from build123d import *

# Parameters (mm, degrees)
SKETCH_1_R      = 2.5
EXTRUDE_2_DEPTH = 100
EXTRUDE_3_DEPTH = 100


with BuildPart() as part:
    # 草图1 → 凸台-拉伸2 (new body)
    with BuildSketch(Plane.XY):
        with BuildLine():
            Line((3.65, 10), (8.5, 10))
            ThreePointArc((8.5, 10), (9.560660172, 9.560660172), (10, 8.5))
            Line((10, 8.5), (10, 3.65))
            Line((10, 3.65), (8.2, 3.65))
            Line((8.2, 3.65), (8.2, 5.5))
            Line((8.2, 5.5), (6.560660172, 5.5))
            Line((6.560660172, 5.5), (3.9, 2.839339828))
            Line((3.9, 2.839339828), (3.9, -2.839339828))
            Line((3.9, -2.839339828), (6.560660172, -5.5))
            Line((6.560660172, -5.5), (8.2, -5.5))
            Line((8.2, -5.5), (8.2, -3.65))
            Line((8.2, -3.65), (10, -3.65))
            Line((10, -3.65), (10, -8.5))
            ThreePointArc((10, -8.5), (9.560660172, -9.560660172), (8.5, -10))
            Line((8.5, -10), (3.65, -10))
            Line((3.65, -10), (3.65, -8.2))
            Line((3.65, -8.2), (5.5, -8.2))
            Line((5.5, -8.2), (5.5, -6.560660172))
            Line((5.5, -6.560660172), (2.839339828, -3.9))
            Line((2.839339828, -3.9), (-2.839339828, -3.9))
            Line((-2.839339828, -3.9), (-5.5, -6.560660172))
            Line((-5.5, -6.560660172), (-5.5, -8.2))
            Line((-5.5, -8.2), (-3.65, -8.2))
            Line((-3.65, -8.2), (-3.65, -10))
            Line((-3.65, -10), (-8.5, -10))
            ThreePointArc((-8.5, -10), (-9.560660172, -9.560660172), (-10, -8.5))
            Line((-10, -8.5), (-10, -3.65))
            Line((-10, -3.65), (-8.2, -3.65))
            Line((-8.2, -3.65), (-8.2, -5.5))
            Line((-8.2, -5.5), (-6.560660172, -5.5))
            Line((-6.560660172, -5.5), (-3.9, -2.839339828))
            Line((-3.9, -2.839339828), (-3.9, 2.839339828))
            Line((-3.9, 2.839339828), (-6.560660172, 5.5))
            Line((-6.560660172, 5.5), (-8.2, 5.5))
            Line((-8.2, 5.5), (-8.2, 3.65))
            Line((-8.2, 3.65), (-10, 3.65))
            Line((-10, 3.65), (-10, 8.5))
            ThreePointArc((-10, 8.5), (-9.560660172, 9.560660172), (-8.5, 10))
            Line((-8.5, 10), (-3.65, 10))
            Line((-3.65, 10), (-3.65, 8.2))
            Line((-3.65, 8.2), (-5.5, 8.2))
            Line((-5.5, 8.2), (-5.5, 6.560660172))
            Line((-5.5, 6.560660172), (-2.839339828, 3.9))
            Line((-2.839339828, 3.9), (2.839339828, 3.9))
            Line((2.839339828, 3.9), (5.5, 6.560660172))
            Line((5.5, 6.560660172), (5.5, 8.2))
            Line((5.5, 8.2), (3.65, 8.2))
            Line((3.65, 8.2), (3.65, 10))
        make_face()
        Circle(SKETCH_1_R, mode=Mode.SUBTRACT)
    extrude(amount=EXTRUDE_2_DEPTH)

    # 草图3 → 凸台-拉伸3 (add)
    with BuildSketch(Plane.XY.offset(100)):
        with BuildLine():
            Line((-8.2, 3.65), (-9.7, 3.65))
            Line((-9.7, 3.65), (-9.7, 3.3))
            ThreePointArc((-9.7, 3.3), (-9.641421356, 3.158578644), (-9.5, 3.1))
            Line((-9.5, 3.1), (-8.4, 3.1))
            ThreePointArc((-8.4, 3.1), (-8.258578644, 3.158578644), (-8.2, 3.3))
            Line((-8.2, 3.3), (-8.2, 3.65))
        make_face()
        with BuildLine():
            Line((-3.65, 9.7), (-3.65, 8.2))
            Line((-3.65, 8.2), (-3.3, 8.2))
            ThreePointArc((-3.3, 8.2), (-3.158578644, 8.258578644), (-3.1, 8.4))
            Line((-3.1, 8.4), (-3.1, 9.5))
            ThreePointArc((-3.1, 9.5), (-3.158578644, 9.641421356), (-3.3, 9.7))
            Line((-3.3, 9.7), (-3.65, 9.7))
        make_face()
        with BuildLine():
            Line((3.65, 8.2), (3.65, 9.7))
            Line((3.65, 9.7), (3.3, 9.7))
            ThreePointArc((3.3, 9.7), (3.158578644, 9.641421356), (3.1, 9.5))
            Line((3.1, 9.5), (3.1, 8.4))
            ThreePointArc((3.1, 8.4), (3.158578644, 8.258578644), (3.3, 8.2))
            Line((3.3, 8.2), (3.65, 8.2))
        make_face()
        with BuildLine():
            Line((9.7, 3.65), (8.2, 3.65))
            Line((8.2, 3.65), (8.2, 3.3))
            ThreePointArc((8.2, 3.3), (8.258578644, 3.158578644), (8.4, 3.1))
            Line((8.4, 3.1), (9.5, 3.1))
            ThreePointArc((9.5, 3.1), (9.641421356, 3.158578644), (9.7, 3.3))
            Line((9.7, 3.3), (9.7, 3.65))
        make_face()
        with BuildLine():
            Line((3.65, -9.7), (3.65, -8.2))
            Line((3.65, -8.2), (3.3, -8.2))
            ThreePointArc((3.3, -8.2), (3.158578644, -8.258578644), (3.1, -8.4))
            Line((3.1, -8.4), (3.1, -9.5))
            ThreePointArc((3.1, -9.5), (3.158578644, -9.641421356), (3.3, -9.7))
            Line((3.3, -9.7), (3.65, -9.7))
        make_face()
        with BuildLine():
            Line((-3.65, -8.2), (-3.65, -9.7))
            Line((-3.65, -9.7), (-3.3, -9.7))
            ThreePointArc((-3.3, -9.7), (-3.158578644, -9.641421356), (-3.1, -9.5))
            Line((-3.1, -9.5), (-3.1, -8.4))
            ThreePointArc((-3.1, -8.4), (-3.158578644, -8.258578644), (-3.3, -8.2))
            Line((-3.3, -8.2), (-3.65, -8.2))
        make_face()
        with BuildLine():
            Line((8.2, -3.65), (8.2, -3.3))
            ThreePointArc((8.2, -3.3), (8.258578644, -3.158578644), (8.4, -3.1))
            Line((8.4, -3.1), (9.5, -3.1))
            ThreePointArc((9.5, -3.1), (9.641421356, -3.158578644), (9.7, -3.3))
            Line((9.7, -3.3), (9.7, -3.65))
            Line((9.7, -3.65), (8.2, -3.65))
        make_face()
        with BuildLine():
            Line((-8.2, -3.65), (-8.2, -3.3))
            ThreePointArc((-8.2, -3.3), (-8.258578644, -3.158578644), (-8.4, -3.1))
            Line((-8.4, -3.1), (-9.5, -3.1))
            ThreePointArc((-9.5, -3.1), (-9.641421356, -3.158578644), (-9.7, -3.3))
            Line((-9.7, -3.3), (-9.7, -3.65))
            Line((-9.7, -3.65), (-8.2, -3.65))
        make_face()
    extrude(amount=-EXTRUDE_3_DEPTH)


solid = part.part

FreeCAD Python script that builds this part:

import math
import FreeCAD as App
import Part
import Sketcher
from FreeCAD import Vector
Q = App.Units.Quantity

doc = App.newDocument("Part")
body = doc.addObject("PartDesign::Body", "Body")

# Sketch on XY plane
sketch1 = body.newObject("Sketcher::SketchObject", "Sketch")
sketch1.AttachmentSupport = (doc.getObject("XY_Plane"), [""])
sketch1.MapMode = "FlatFace"
sketch1.addGeometry([
    Part.LineSegment(Vector(8.5, 10, 0), Vector(3.65, 10, 0)),  # 0
    Part.LineSegment(Vector(3.65, 10, 0), Vector(3.65, 8.2, 0)),  # 1
    Part.LineSegment(Vector(3.65, 8.2, 0), Vector(5.5, 8.2, 0)),  # 2
    Part.LineSegment(Vector(5.5, 8.2, 0), Vector(5.5, 6.56066, 0)),  # 3
    Part.LineSegment(Vector(5.5, 6.56066, 0), Vector(2.83934, 3.9, 0)),  # 4
    Part.LineSegment(Vector(2.83934, 3.9, 0), Vector(-2.83934, 3.9, 0)),  # 5
    Part.LineSegment(Vector(-2.83934, 3.9, 0), Vector(-5.5, 6.56066, 0)),  # 6
    Part.LineSegment(Vector(-5.5, 6.56066, 0), Vector(-5.5, 8.2, 0)),  # 7
    Part.LineSegment(Vector(-5.5, 8.2, 0), Vector(-3.65, 8.2, 0)),  # 8
    Part.LineSegment(Vector(-3.65, 8.2, 0), Vector(-3.65, 10, 0)),  # 9
    Part.LineSegment(Vector(-3.65, 10, 0), Vector(-8.5, 10, 0)),  # 10
    Part.ArcOfCircle(Part.Circle(Vector(-8.5, 8.5, 0), Vector(0, 0, 1), 1.5), math.radians(90), math.radians(180)),  # 11
    Part.LineSegment(Vector(-10, 8.5, 0), Vector(-10, 3.65, 0)),  # 12
    Part.LineSegment(Vector(-10, 3.65, 0), Vector(-8.2, 3.65, 0)),  # 13
    Part.LineSegment(Vector(-8.2, 3.65, 0), Vector(-8.2, 5.5, 0)),  # 14
    Part.LineSegment(Vector(-8.2, 5.5, 0), Vector(-6.56066, 5.5, 0)),  # 15
    Part.LineSegment(Vector(-6.56066, 5.5, 0), Vector(-3.9, 2.83934, 0)),  # 16
    Part.LineSegment(Vector(-3.9, 2.83934, 0), Vector(-3.9, -2.83934, 0)),  # 17
    Part.LineSegment(Vector(-3.9, -2.83934, 0), Vector(-6.56066, -5.5, 0)),  # 18
    Part.LineSegment(Vector(-6.56066, -5.5, 0), Vector(-8.2, -5.5, 0)),  # 19
    Part.LineSegment(Vector(-8.2, -5.5, 0), Vector(-8.2, -3.65, 0)),  # 20
    Part.LineSegment(Vector(-8.2, -3.65, 0), Vector(-10, -3.65, 0)),  # 21
    Part.LineSegment(Vector(-10, -3.65, 0), Vector(-10, -8.5, 0)),  # 22
    Part.ArcOfCircle(Part.Circle(Vector(-8.5, -8.5, 0), Vector(0, 0, 1), 1.5), math.radians(180), math.radians(270)),  # 23
    Part.LineSegment(Vector(-8.5, -10, 0), Vector(-3.65, -10, 0)),  # 24
    Part.LineSegment(Vector(-3.65, -10, 0), Vector(-3.65, -8.2, 0)),  # 25
    Part.LineSegment(Vector(-3.65, -8.2, 0), Vector(-5.5, -8.2, 0)),  # 26
    Part.LineSegment(Vector(-5.5, -8.2, 0), Vector(-5.5, -6.56066, 0)),  # 27
    Part.LineSegment(Vector(-5.5, -6.56066, 0), Vector(-2.83934, -3.9, 0)),  # 28
    Part.LineSegment(Vector(-2.83934, -3.9, 0), Vector(2.83934, -3.9, 0)),  # 29
    Part.LineSegment(Vector(2.83934, -3.9, 0), Vector(5.5, -6.56066, 0)),  # 30
    Part.LineSegment(Vector(5.5, -6.56066, 0), Vector(5.5, -8.2, 0)),  # 31
    Part.LineSegment(Vector(5.5, -8.2, 0), Vector(3.65, -8.2, 0)),  # 32
    Part.LineSegment(Vector(3.65, -8.2, 0), Vector(3.65, -10, 0)),  # 33
    Part.LineSegment(Vector(3.65, -10, 0), Vector(8.5, -10, 0)),  # 34
    Part.ArcOfCircle(Part.Circle(Vector(8.5, -8.5, 0), Vector(0, 0, 1), 1.5), math.radians(-90), math.radians(0)),  # 35
    Part.LineSegment(Vector(10, -8.5, 0), Vector(10, -3.65, 0)),  # 36
    Part.LineSegment(Vector(10, -3.65, 0), Vector(8.2, -3.65, 0)),  # 37
    Part.LineSegment(Vector(8.2, -3.65, 0), Vector(8.2, -5.5, 0)),  # 38
    Part.LineSegment(Vector(8.2, -5.5, 0), Vector(6.56066, -5.5, 0)),  # 39
    Part.LineSegment(Vector(6.56066, -5.5, 0), Vector(3.9, -2.83934, 0)),  # 40
    Part.LineSegment(Vector(3.9, -2.83934, 0), Vector(3.9, 2.83934, 0)),  # 41
    Part.LineSegment(Vector(3.9, 2.83934, 0), Vector(6.56066, 5.5, 0)),  # 42
    Part.LineSegment(Vector(6.56066, 5.5, 0), Vector(8.2, 5.5, 0)),  # 43
    Part.LineSegment(Vector(8.2, 5.5, 0), Vector(8.2, 3.65, 0)),  # 44
    Part.LineSegment(Vector(8.2, 3.65, 0), Vector(10, 3.65, 0)),  # 45
    Part.LineSegment(Vector(10, 3.65, 0), Vector(10, 8.5, 0)),  # 46
    Part.ArcOfCircle(Part.Circle(Vector(8.5, 8.5, 0), Vector(0, 0, 1), 1.5), math.radians(0), math.radians(90)),  # 47
    Part.Circle(Vector(0, 0, 0), Vector(0, 0, 1), 2.5),  # 48
], False)
sketch1.addConstraint([
    Sketcher.Constraint("Coincident", 0, 2, 1, 1),
    Sketcher.Constraint("Coincident", 1, 2, 2, 1),
    Sketcher.Constraint("Coincident", 2, 2, 3, 1),
    Sketcher.Constraint("Coincident", 3, 2, 4, 1),
    Sketcher.Constraint("Coincident", 4, 2, 5, 1),
    Sketcher.Constraint("Coincident", 5, 2, 6, 1),
    Sketcher.Constraint("Coincident", 6, 2, 7, 1),
    Sketcher.Constraint("Coincident", 7, 2, 8, 1),
    Sketcher.Constraint("Coincident", 8, 2, 9, 1),
    Sketcher.Constraint("Coincident", 9, 2, 10, 1),
    Sketcher.Constraint("Tangent", 10, 2, 11, 1),
    Sketcher.Constraint("Tangent", 11, 2, 12, 1),
    Sketcher.Constraint("Coincident", 12, 2, 13, 1),
    Sketcher.Constraint("Coincident", 13, 2, 14, 1),
    Sketcher.Constraint("Coincident", 14, 2, 15, 1),
    Sketcher.Constraint("Coincident", 15, 2, 16, 1),
    Sketcher.Constraint("Coincident", 16, 2, 17, 1),
    Sketcher.Constraint("Coincident", 17, 2, 18, 1),
    Sketcher.Constraint("Coincident", 18, 2, 19, 1),
    Sketcher.Constraint("Coincident", 19, 2, 20, 1),
    Sketcher.Constraint("Coincident", 20, 2, 21, 1),
    Sketcher.Constraint("Coincident", 21, 2, 22, 1),
    Sketcher.Constraint("Tangent", 22, 2, 23, 1),
    Sketcher.Constraint("Tangent", 23, 2, 24, 1),
    Sketcher.Constraint("Coincident", 24, 2, 25, 1),
    Sketcher.Constraint("Coincident", 25, 2, 26, 1),
    Sketcher.Constraint("Coincident", 26, 2, 27, 1),
    Sketcher.Constraint("Coincident", 27, 2, 28, 1),
    Sketcher.Constraint("Coincident", 28, 2, 29, 1),
    Sketcher.Constraint("Coincident", 29, 2, 30, 1),
    Sketcher.Constraint("Coincident", 30, 2, 31, 1),
    Sketcher.Constraint("Coincident", 31, 2, 32, 1),
    Sketcher.Constraint("Coincident", 32, 2, 33, 1),
    Sketcher.Constraint("Coincident", 33, 2, 34, 1),
    Sketcher.Constraint("Tangent", 34, 2, 35, 1),
    Sketcher.Constraint("Tangent", 35, 2, 36, 1),
    Sketcher.Constraint("Coincident", 36, 2, 37, 1),
    Sketcher.Constraint("Coincident", 37, 2, 38, 1),
    Sketcher.Constraint("Coincident", 38, 2, 39, 1),
    Sketcher.Constraint("Coincident", 39, 2, 40, 1),
    Sketcher.Constraint("Coincident", 40, 2, 41, 1),
    Sketcher.Constraint("Coincident", 41, 2, 42, 1),
    Sketcher.Constraint("Coincident", 42, 2, 43, 1),
    Sketcher.Constraint("Coincident", 43, 2, 44, 1),
    Sketcher.Constraint("Coincident", 44, 2, 45, 1),
    Sketcher.Constraint("Coincident", 45, 2, 46, 1),
    Sketcher.Constraint("Tangent", 46, 2, 47, 1),
    Sketcher.Constraint("Tangent", 47, 2, 0, 1),
    Sketcher.Constraint("Horizontal", 0),
    Sketcher.Constraint("Vertical", 1),
    Sketcher.Constraint("Horizontal", 2),
    Sketcher.Constraint("Vertical", 3),
    Sketcher.Constraint("Horizontal", 5),
    Sketcher.Constraint("Vertical", 7),
    Sketcher.Constraint("Horizontal", 8),
    Sketcher.Constraint("Vertical", 9),
    Sketcher.Constraint("Horizontal", 10),
    Sketcher.Constraint("Vertical", 12),
    Sketcher.Constraint("Horizontal", 13),
    Sketcher.Constraint("Vertical", 14),
    Sketcher.Constraint("Horizontal", 15),
    Sketcher.Constraint("Vertical", 17),
    Sketcher.Constraint("Horizontal", 19),
    Sketcher.Constraint("Vertical", 20),
    Sketcher.Constraint("Horizontal", 21),
    Sketcher.Constraint("Vertical", 22),
    Sketcher.Constraint("Horizontal", 24),
    Sketcher.Constraint("Vertical", 25),
    Sketcher.Constraint("Horizontal", 26),
    Sketcher.Constraint("Vertical", 27),
    Sketcher.Constraint("Horizontal", 29),
    Sketcher.Constraint("Vertical", 31),
    Sketcher.Constraint("Horizontal", 32),
    Sketcher.Constraint("Vertical", 33),
    Sketcher.Constraint("Horizontal", 34),
    Sketcher.Constraint("Vertical", 36),
    Sketcher.Constraint("Horizontal", 37),
    Sketcher.Constraint("Vertical", 38),
    Sketcher.Constraint("Horizontal", 39),
    Sketcher.Constraint("Vertical", 41),
    Sketcher.Constraint("Horizontal", 43),
    Sketcher.Constraint("Vertical", 44),
    Sketcher.Constraint("Horizontal", 45),
    Sketcher.Constraint("Vertical", 46),
    Sketcher.Constraint("Coincident", 48, 3, -1, 1),
    Sketcher.Constraint("Equal", 11, 23),
    Sketcher.Constraint("Equal", 23, 35),
    Sketcher.Constraint("Equal", 35, 47),
    Sketcher.Constraint("Symmetric", 11, 3, 35, 3, -1, 1),
    Sketcher.Constraint("Symmetric", 23, 3, 47, 3, -1, 1),
    Sketcher.Constraint("Symmetric", 1, 2, 25, 2, -1, 1),
    Sketcher.Constraint("Symmetric", 3, 2, 27, 2, -1, 1),
    Sketcher.Constraint("Symmetric", 4, 2, 28, 2, -1, 1),
    Sketcher.Constraint("Symmetric", 6, 2, 30, 2, -1, 1),
    Sketcher.Constraint("Symmetric", 8, 2, 32, 2, -1, 1),
    Sketcher.Constraint("Symmetric", 13, 2, 37, 2, -1, 1),
    Sketcher.Constraint("Symmetric", 15, 2, 39, 2, -1, 1),
    Sketcher.Constraint("Symmetric", 16, 2, 40, 2, -1, 1),
    Sketcher.Constraint("Symmetric", 18, 2, 42, 2, -1, 1),
    Sketcher.Constraint("Symmetric", 20, 2, 44, 2, -1, 1),
    Sketcher.Constraint("Symmetric", 23, 3, 35, 3, -2),
    Sketcher.Constraint("Symmetric", 3, 2, 6, 2, -2),
    Sketcher.Constraint("Symmetric", 1, 2, 8, 2, -2),
    Sketcher.Constraint("Symmetric", 20, 2, 37, 2, -2),
    Sketcher.Constraint("Symmetric", 18, 2, 39, 2, -2),
    Sketcher.Constraint("Perpendicular", 4, 6),
    Sketcher.Constraint("Parallel", 6, 16),
    Sketcher.Constraint("Perpendicular", 16, 18),
    Sketcher.Constraint("Perpendicular", 28, 30),
    Sketcher.Constraint("Perpendicular", 40, 42),
    Sketcher.Constraint("Horizontal", 17, 2, 40, 2),
    Sketcher.Constraint("Equal", 45, 1),
    Sketcher.Constraint("Equal", 43, 3),
    Sketcher.Constraint("Equal", 34, 12),
    Sketcher.Constraint("Equal", 32, 14),
    Sketcher.Constraint("Equal", 29, 17),
    Sketcher.Constraint("Equal", 6, 16),
    Sketcher.Constraint("Diameter", 48, Q("5 mm")),
    Sketcher.Constraint("Radius", 11, Q("1.5 mm")),
    Sketcher.Constraint("DistanceX", 13, 1, 13, 2, Q("1.8 mm")),
    Sketcher.Constraint("DistanceY", -1, 1, 0, 2, Q("10 mm")),
    Sketcher.Constraint("DistanceX", 2, 2, 47, 3, Q("3 mm")),
    Sketcher.Constraint("DistanceX", 0, 2, 0, 1, Q("4.85 mm")),
    Sketcher.Constraint("DistanceY", -1, 1, 4, 2, Q("3.9 mm")),
    Sketcher.Constraint("DistanceX", 5, 2, 5, 1, Q("5.67868 mm")),
])
pad1 = body.newObject("PartDesign::Pad", "Pad")
pad1.Profile = sketch1
pad1.Length = 100

# Sketch on XY plane
sketch2 = body.newObject("Sketcher::SketchObject", "Sketch001")
sketch2.AttachmentSupport = (doc.getObject("XY_Plane"), [""])
sketch2.MapMode = "FlatFace"
sketch2.AttachmentOffset = App.Placement(Vector(0, 0, 100), App.Rotation())
sketch2.addGeometry([
    Part.LineSegment(Vector(-8.2, 3.65, 0), Vector(-9.7, 3.65, 0)),  # 0
    Part.LineSegment(Vector(-9.7, 3.65, 0), Vector(-9.7, 3.3, 0)),  # 1
    Part.ArcOfCircle(Part.Circle(Vector(-9.5, 3.3, 0), Vector(0, 0, 1), 0.2), math.radians(-180), math.radians(-90)),  # 2
    Part.LineSegment(Vector(-9.5, 3.1, 0), Vector(-8.4, 3.1, 0)),  # 3
    Part.ArcOfCircle(Part.Circle(Vector(-8.4, 3.3, 0), Vector(0, 0, 1), 0.2), math.radians(-90), math.radians(0)),  # 4
    Part.LineSegment(Vector(-8.2, 3.3, 0), Vector(-8.2, 3.65, 0)),  # 5
    Part.LineSegment(Vector(-3.65, 9.7, 0), Vector(-3.65, 8.2, 0)),  # 6
    Part.LineSegment(Vector(-3.65, 8.2, 0), Vector(-3.3, 8.2, 0)),  # 7
    Part.ArcOfCircle(Part.Circle(Vector(-3.3, 8.4, 0), Vector(0, 0, 1), 0.2), math.radians(-90), math.radians(0)),  # 8
    Part.LineSegment(Vector(-3.1, 8.4, 0), Vector(-3.1, 9.5, 0)),  # 9
    Part.ArcOfCircle(Part.Circle(Vector(-3.3, 9.5, 0), Vector(0, 0, 1), 0.2), math.radians(0), math.radians(90)),  # 10
    Part.LineSegment(Vector(-3.3, 9.7, 0), Vector(-3.65, 9.7, 0)),  # 11
    Part.LineSegment(Vector(3.65, 8.2, 0), Vector(3.65, 9.7, 0)),  # 12
    Part.LineSegment(Vector(3.65, 9.7, 0), Vector(3.3, 9.7, 0)),  # 13
    Part.ArcOfCircle(Part.Circle(Vector(3.3, 9.5, 0), Vector(0, 0, 1), 0.2), math.radians(90), math.radians(180)),  # 14
    Part.LineSegment(Vector(3.1, 9.5, 0), Vector(3.1, 8.4, 0)),  # 15
    Part.ArcOfCircle(Part.Circle(Vector(3.3, 8.4, 0), Vector(0, 0, 1), 0.2), math.radians(-180), math.radians(-90)),  # 16
    Part.LineSegment(Vector(3.3, 8.2, 0), Vector(3.65, 8.2, 0)),  # 17
    Part.LineSegment(Vector(9.7, 3.65, 0), Vector(8.2, 3.65, 0)),  # 18
    Part.LineSegment(Vector(8.2, 3.65, 0), Vector(8.2, 3.3, 0)),  # 19
    Part.ArcOfCircle(Part.Circle(Vector(8.4, 3.3, 0), Vector(0, 0, 1), 0.2), math.radians(-180), math.radians(-90)),  # 20
    Part.LineSegment(Vector(8.4, 3.1, 0), Vector(9.5, 3.1, 0)),  # 21
    Part.ArcOfCircle(Part.Circle(Vector(9.5, 3.3, 0), Vector(0, 0, 1), 0.2), math.radians(-90), math.radians(0)),  # 22
    Part.LineSegment(Vector(9.7, 3.3, 0), Vector(9.7, 3.65, 0)),  # 23
    Part.LineSegment(Vector(3.65, -9.7, 0), Vector(3.65, -8.2, 0)),  # 24
    Part.LineSegment(Vector(3.65, -8.2, 0), Vector(3.3, -8.2, 0)),  # 25
    Part.ArcOfCircle(Part.Circle(Vector(3.3, -8.4, 0), Vector(0, 0, 1), 0.2), math.radians(90), math.radians(180)),  # 26
    Part.LineSegment(Vector(3.1, -8.4, 0), Vector(3.1, -9.5, 0)),  # 27
    Part.ArcOfCircle(Part.Circle(Vector(3.3, -9.5, 0), Vector(0, 0, 1), 0.2), math.radians(-180), math.radians(-90)),  # 28
    Part.LineSegment(Vector(3.3, -9.7, 0), Vector(3.65, -9.7, 0)),  # 29
    Part.LineSegment(Vector(-3.65, -8.2, 0), Vector(-3.65, -9.7, 0)),  # 30
    Part.LineSegment(Vector(-3.65, -9.7, 0), Vector(-3.3, -9.7, 0)),  # 31
    Part.ArcOfCircle(Part.Circle(Vector(-3.3, -9.5, 0), Vector(0, 0, 1), 0.2), math.radians(-90), math.radians(0)),  # 32
    Part.LineSegment(Vector(-3.1, -9.5, 0), Vector(-3.1, -8.4, 0)),  # 33
    Part.ArcOfCircle(Part.Circle(Vector(-3.3, -8.4, 0), Vector(0, 0, 1), 0.2), math.radians(0), math.radians(90)),  # 34
    Part.LineSegment(Vector(-3.3, -8.2, 0), Vector(-3.65, -8.2, 0)),  # 35
    Part.LineSegment(Vector(8.2, -3.3, 0), Vector(8.2, -3.65, 0)),  # 36
    Part.LineSegment(Vector(8.2, -3.65, 0), Vector(9.7, -3.65, 0)),  # 37
    Part.LineSegment(Vector(9.7, -3.65, 0), Vector(9.7, -3.3, 0)),  # 38
    Part.ArcOfCircle(Part.Circle(Vector(9.5, -3.3, 0), Vector(0, 0, 1), 0.2), math.radians(0), math.radians(90)),  # 39
    Part.LineSegment(Vector(9.5, -3.1, 0), Vector(8.4, -3.1, 0)),  # 40
    Part.ArcOfCircle(Part.Circle(Vector(8.4, -3.3, 0), Vector(0, 0, 1), 0.2), math.radians(90), math.radians(180)),  # 41
    Part.LineSegment(Vector(-8.2, -3.65, 0), Vector(-8.2, -3.3, 0)),  # 42
    Part.ArcOfCircle(Part.Circle(Vector(-8.4, -3.3, 0), Vector(0, 0, 1), 0.2), math.radians(0), math.radians(90)),  # 43
    Part.LineSegment(Vector(-8.4, -3.1, 0), Vector(-9.5, -3.1, 0)),  # 44
    Part.ArcOfCircle(Part.Circle(Vector(-9.5, -3.3, 0), Vector(0, 0, 1), 0.2), math.radians(90), math.radians(180)),  # 45
    Part.LineSegment(Vector(-9.7, -3.3, 0), Vector(-9.7, -3.65, 0)),  # 46
    Part.LineSegment(Vector(-9.7, -3.65, 0), Vector(-8.2, -3.65, 0)),  # 47
], False)
sketch2.addConstraint([
    Sketcher.Constraint("Coincident", 0, 2, 1, 1),
    Sketcher.Constraint("Tangent", 1, 2, 2, 1),
    Sketcher.Constraint("Tangent", 2, 2, 3, 1),
    Sketcher.Constraint("Tangent", 3, 2, 4, 1),
    Sketcher.Constraint("Tangent", 4, 2, 5, 1),
    Sketcher.Constraint("Coincident", 5, 2, 0, 1),
    Sketcher.Constraint("Coincident", 6, 2, 7, 1),
    Sketcher.Constraint("Tangent", 7, 2, 8, 1),
    Sketcher.Constraint("Tangent", 8, 2, 9, 1),
    Sketcher.Constraint("Tangent", 9, 2, 10, 1),
    Sketcher.Constraint("Tangent", 10, 2, 11, 1),
    Sketcher.Constraint("Coincident", 11, 2, 6, 1),
    Sketcher.Constraint("Coincident", 12, 2, 13, 1),
    Sketcher.Constraint("Tangent", 13, 2, 14, 1),
    Sketcher.Constraint("Tangent", 14, 2, 15, 1),
    Sketcher.Constraint("Tangent", 15, 2, 16, 1),
    Sketcher.Constraint("Tangent", 16, 2, 17, 1),
    Sketcher.Constraint("Coincident", 17, 2, 12, 1),
    Sketcher.Constraint("Coincident", 18, 2, 19, 1),
    Sketcher.Constraint("Tangent", 19, 2, 20, 1),
    Sketcher.Constraint("Tangent", 20, 2, 21, 1),
    Sketcher.Constraint("Tangent", 21, 2, 22, 1),
    Sketcher.Constraint("Tangent", 22, 2, 23, 1),
    Sketcher.Constraint("Coincident", 23, 2, 18, 1),
    Sketcher.Constraint("Coincident", 24, 2, 25, 1),
    Sketcher.Constraint("Tangent", 25, 2, 26, 1),
    Sketcher.Constraint("Tangent", 26, 2, 27, 1),
    Sketcher.Constraint("Tangent", 27, 2, 28, 1),
    Sketcher.Constraint("Tangent", 28, 2, 29, 1),
    Sketcher.Constraint("Coincident", 29, 2, 24, 1),
    Sketcher.Constraint("Coincident", 30, 2, 31, 1),
    Sketcher.Constraint("Tangent", 31, 2, 32, 1),
    Sketcher.Constraint("Tangent", 32, 2, 33, 1),
    Sketcher.Constraint("Tangent", 33, 2, 34, 1),
    Sketcher.Constraint("Tangent", 34, 2, 35, 1),
    Sketcher.Constraint("Coincident", 35, 2, 30, 1),
    Sketcher.Constraint("Coincident", 36, 2, 37, 1),
    Sketcher.Constraint("Coincident", 37, 2, 38, 1),
    Sketcher.Constraint("Tangent", 38, 2, 39, 1),
    Sketcher.Constraint("Tangent", 39, 2, 40, 1),
    Sketcher.Constraint("Tangent", 40, 2, 41, 1),
    Sketcher.Constraint("Tangent", 41, 2, 36, 1),
    Sketcher.Constraint("Tangent", 42, 2, 43, 1),
    Sketcher.Constraint("Tangent", 43, 2, 44, 1),
    Sketcher.Constraint("Tangent", 44, 2, 45, 1),
    Sketcher.Constraint("Tangent", 45, 2, 46, 1),
    Sketcher.Constraint("Coincident", 46, 2, 47, 1),
    Sketcher.Constraint("Coincident", 47, 2, 42, 1),
    Sketcher.Constraint("Horizontal", 0),
    Sketcher.Constraint("Vertical", 1),
    Sketcher.Constraint("Horizontal", 3),
    Sketcher.Constraint("Vertical", 5),
    Sketcher.Constraint("Vertical", 6),
    Sketcher.Constraint("Horizontal", 7),
    Sketcher.Constraint("Vertical", 9),
    Sketcher.Constraint("Horizontal", 11),
    Sketcher.Constraint("Vertical", 12),
    Sketcher.Constraint("Horizontal", 13),
    Sketcher.Constraint("Vertical", 15),
    Sketcher.Constraint("Horizontal", 17),
    Sketcher.Constraint("Horizontal", 18),
    Sketcher.Constraint("Vertical", 19),
    Sketcher.Constraint("Horizontal", 21),
    Sketcher.Constraint("Vertical", 23),
    Sketcher.Constraint("Vertical", 24),
    Sketcher.Constraint("Horizontal", 25),
    Sketcher.Constraint("Vertical", 27),
    Sketcher.Constraint("Horizontal", 29),
    Sketcher.Constraint("Vertical", 30),
    Sketcher.Constraint("Horizontal", 31),
    Sketcher.Constraint("Vertical", 33),
    Sketcher.Constraint("Horizontal", 35),
    Sketcher.Constraint("Vertical", 36),
    Sketcher.Constraint("Horizontal", 37),
    Sketcher.Constraint("Vertical", 38),
    Sketcher.Constraint("Horizontal", 40),
    Sketcher.Constraint("Vertical", 42),
    Sketcher.Constraint("Horizontal", 44),
    Sketcher.Constraint("Vertical", 46),
    Sketcher.Constraint("Horizontal", 47),
    Sketcher.Constraint("Equal", 2, 4),
    Sketcher.Constraint("Equal", 4, 8),
    Sketcher.Constraint("Equal", 8, 10),
    Sketcher.Constraint("Equal", 10, 14),
    Sketcher.Constraint("Equal", 14, 16),
    Sketcher.Constraint("Equal", 16, 20),
    Sketcher.Constraint("Equal", 20, 22),
    Sketcher.Constraint("Equal", 22, 26),
    Sketcher.Constraint("Equal", 26, 28),
    Sketcher.Constraint("Equal", 28, 32),
    Sketcher.Constraint("Equal", 32, 34),
    Sketcher.Constraint("Equal", 34, 39),
    Sketcher.Constraint("Equal", 39, 41),
    Sketcher.Constraint("Equal", 41, 43),
    Sketcher.Constraint("Equal", 43, 45),
    Sketcher.Constraint("Symmetric", 8, 3, 26, 3, -1, 1),
    Sketcher.Constraint("Symmetric", 14, 3, 32, 3, -1, 1),
    Sketcher.Constraint("Symmetric", 2, 3, 39, 3, -1, 1),
    Sketcher.Constraint("Symmetric", 20, 3, 43, 3, -1, 1),
    Sketcher.Constraint("Symmetric", 11, 2, 29, 2, -1, 1),
    Sketcher.Constraint("Symmetric", 17, 2, 35, 2, -1, 1),
    Sketcher.Constraint("Symmetric", 5, 2, 36, 2, -1, 1),
    Sketcher.Constraint("Symmetric", 23, 2, 46, 2, -1, 1),
    Sketcher.Constraint("Symmetric", 10, 3, 14, 3, -2),
    Sketcher.Constraint("Symmetric", 4, 3, 20, 3, -2),
    Sketcher.Constraint("Symmetric", 6, 2, 17, 2, -2),
    Sketcher.Constraint("Symmetric", 0, 2, 23, 2, -2),
    Sketcher.Constraint("Equal", 35, 1),
    Sketcher.Constraint("Equal", 47, 6),
    Sketcher.Constraint("Radius", 2, Q("0.2 mm")),
    Sketcher.Constraint("DistanceX", 0, 2, 0, 1, Q("1.5 mm")),
    Sketcher.Constraint("DistanceX", 7, 1, 7, 2, Q("0.35 mm")),
    Sketcher.Constraint("DistanceX", 2, 3, -1, 1, Q("9.5 mm")),
    Sketcher.Constraint("DistanceY", -1, 1, 2, 3, Q("3.3 mm")),
    Sketcher.Constraint("DistanceX", 8, 3, -1, 1, Q("3.3 mm")),
    Sketcher.Constraint("DistanceY", -1, 1, 8, 3, Q("8.4 mm")),
])
pad2 = body.newObject("PartDesign::Pad", "Pad001")
pad2.Profile = sketch2
pad2.Length = 100
pad2.Reversed = True

doc.recompute()
